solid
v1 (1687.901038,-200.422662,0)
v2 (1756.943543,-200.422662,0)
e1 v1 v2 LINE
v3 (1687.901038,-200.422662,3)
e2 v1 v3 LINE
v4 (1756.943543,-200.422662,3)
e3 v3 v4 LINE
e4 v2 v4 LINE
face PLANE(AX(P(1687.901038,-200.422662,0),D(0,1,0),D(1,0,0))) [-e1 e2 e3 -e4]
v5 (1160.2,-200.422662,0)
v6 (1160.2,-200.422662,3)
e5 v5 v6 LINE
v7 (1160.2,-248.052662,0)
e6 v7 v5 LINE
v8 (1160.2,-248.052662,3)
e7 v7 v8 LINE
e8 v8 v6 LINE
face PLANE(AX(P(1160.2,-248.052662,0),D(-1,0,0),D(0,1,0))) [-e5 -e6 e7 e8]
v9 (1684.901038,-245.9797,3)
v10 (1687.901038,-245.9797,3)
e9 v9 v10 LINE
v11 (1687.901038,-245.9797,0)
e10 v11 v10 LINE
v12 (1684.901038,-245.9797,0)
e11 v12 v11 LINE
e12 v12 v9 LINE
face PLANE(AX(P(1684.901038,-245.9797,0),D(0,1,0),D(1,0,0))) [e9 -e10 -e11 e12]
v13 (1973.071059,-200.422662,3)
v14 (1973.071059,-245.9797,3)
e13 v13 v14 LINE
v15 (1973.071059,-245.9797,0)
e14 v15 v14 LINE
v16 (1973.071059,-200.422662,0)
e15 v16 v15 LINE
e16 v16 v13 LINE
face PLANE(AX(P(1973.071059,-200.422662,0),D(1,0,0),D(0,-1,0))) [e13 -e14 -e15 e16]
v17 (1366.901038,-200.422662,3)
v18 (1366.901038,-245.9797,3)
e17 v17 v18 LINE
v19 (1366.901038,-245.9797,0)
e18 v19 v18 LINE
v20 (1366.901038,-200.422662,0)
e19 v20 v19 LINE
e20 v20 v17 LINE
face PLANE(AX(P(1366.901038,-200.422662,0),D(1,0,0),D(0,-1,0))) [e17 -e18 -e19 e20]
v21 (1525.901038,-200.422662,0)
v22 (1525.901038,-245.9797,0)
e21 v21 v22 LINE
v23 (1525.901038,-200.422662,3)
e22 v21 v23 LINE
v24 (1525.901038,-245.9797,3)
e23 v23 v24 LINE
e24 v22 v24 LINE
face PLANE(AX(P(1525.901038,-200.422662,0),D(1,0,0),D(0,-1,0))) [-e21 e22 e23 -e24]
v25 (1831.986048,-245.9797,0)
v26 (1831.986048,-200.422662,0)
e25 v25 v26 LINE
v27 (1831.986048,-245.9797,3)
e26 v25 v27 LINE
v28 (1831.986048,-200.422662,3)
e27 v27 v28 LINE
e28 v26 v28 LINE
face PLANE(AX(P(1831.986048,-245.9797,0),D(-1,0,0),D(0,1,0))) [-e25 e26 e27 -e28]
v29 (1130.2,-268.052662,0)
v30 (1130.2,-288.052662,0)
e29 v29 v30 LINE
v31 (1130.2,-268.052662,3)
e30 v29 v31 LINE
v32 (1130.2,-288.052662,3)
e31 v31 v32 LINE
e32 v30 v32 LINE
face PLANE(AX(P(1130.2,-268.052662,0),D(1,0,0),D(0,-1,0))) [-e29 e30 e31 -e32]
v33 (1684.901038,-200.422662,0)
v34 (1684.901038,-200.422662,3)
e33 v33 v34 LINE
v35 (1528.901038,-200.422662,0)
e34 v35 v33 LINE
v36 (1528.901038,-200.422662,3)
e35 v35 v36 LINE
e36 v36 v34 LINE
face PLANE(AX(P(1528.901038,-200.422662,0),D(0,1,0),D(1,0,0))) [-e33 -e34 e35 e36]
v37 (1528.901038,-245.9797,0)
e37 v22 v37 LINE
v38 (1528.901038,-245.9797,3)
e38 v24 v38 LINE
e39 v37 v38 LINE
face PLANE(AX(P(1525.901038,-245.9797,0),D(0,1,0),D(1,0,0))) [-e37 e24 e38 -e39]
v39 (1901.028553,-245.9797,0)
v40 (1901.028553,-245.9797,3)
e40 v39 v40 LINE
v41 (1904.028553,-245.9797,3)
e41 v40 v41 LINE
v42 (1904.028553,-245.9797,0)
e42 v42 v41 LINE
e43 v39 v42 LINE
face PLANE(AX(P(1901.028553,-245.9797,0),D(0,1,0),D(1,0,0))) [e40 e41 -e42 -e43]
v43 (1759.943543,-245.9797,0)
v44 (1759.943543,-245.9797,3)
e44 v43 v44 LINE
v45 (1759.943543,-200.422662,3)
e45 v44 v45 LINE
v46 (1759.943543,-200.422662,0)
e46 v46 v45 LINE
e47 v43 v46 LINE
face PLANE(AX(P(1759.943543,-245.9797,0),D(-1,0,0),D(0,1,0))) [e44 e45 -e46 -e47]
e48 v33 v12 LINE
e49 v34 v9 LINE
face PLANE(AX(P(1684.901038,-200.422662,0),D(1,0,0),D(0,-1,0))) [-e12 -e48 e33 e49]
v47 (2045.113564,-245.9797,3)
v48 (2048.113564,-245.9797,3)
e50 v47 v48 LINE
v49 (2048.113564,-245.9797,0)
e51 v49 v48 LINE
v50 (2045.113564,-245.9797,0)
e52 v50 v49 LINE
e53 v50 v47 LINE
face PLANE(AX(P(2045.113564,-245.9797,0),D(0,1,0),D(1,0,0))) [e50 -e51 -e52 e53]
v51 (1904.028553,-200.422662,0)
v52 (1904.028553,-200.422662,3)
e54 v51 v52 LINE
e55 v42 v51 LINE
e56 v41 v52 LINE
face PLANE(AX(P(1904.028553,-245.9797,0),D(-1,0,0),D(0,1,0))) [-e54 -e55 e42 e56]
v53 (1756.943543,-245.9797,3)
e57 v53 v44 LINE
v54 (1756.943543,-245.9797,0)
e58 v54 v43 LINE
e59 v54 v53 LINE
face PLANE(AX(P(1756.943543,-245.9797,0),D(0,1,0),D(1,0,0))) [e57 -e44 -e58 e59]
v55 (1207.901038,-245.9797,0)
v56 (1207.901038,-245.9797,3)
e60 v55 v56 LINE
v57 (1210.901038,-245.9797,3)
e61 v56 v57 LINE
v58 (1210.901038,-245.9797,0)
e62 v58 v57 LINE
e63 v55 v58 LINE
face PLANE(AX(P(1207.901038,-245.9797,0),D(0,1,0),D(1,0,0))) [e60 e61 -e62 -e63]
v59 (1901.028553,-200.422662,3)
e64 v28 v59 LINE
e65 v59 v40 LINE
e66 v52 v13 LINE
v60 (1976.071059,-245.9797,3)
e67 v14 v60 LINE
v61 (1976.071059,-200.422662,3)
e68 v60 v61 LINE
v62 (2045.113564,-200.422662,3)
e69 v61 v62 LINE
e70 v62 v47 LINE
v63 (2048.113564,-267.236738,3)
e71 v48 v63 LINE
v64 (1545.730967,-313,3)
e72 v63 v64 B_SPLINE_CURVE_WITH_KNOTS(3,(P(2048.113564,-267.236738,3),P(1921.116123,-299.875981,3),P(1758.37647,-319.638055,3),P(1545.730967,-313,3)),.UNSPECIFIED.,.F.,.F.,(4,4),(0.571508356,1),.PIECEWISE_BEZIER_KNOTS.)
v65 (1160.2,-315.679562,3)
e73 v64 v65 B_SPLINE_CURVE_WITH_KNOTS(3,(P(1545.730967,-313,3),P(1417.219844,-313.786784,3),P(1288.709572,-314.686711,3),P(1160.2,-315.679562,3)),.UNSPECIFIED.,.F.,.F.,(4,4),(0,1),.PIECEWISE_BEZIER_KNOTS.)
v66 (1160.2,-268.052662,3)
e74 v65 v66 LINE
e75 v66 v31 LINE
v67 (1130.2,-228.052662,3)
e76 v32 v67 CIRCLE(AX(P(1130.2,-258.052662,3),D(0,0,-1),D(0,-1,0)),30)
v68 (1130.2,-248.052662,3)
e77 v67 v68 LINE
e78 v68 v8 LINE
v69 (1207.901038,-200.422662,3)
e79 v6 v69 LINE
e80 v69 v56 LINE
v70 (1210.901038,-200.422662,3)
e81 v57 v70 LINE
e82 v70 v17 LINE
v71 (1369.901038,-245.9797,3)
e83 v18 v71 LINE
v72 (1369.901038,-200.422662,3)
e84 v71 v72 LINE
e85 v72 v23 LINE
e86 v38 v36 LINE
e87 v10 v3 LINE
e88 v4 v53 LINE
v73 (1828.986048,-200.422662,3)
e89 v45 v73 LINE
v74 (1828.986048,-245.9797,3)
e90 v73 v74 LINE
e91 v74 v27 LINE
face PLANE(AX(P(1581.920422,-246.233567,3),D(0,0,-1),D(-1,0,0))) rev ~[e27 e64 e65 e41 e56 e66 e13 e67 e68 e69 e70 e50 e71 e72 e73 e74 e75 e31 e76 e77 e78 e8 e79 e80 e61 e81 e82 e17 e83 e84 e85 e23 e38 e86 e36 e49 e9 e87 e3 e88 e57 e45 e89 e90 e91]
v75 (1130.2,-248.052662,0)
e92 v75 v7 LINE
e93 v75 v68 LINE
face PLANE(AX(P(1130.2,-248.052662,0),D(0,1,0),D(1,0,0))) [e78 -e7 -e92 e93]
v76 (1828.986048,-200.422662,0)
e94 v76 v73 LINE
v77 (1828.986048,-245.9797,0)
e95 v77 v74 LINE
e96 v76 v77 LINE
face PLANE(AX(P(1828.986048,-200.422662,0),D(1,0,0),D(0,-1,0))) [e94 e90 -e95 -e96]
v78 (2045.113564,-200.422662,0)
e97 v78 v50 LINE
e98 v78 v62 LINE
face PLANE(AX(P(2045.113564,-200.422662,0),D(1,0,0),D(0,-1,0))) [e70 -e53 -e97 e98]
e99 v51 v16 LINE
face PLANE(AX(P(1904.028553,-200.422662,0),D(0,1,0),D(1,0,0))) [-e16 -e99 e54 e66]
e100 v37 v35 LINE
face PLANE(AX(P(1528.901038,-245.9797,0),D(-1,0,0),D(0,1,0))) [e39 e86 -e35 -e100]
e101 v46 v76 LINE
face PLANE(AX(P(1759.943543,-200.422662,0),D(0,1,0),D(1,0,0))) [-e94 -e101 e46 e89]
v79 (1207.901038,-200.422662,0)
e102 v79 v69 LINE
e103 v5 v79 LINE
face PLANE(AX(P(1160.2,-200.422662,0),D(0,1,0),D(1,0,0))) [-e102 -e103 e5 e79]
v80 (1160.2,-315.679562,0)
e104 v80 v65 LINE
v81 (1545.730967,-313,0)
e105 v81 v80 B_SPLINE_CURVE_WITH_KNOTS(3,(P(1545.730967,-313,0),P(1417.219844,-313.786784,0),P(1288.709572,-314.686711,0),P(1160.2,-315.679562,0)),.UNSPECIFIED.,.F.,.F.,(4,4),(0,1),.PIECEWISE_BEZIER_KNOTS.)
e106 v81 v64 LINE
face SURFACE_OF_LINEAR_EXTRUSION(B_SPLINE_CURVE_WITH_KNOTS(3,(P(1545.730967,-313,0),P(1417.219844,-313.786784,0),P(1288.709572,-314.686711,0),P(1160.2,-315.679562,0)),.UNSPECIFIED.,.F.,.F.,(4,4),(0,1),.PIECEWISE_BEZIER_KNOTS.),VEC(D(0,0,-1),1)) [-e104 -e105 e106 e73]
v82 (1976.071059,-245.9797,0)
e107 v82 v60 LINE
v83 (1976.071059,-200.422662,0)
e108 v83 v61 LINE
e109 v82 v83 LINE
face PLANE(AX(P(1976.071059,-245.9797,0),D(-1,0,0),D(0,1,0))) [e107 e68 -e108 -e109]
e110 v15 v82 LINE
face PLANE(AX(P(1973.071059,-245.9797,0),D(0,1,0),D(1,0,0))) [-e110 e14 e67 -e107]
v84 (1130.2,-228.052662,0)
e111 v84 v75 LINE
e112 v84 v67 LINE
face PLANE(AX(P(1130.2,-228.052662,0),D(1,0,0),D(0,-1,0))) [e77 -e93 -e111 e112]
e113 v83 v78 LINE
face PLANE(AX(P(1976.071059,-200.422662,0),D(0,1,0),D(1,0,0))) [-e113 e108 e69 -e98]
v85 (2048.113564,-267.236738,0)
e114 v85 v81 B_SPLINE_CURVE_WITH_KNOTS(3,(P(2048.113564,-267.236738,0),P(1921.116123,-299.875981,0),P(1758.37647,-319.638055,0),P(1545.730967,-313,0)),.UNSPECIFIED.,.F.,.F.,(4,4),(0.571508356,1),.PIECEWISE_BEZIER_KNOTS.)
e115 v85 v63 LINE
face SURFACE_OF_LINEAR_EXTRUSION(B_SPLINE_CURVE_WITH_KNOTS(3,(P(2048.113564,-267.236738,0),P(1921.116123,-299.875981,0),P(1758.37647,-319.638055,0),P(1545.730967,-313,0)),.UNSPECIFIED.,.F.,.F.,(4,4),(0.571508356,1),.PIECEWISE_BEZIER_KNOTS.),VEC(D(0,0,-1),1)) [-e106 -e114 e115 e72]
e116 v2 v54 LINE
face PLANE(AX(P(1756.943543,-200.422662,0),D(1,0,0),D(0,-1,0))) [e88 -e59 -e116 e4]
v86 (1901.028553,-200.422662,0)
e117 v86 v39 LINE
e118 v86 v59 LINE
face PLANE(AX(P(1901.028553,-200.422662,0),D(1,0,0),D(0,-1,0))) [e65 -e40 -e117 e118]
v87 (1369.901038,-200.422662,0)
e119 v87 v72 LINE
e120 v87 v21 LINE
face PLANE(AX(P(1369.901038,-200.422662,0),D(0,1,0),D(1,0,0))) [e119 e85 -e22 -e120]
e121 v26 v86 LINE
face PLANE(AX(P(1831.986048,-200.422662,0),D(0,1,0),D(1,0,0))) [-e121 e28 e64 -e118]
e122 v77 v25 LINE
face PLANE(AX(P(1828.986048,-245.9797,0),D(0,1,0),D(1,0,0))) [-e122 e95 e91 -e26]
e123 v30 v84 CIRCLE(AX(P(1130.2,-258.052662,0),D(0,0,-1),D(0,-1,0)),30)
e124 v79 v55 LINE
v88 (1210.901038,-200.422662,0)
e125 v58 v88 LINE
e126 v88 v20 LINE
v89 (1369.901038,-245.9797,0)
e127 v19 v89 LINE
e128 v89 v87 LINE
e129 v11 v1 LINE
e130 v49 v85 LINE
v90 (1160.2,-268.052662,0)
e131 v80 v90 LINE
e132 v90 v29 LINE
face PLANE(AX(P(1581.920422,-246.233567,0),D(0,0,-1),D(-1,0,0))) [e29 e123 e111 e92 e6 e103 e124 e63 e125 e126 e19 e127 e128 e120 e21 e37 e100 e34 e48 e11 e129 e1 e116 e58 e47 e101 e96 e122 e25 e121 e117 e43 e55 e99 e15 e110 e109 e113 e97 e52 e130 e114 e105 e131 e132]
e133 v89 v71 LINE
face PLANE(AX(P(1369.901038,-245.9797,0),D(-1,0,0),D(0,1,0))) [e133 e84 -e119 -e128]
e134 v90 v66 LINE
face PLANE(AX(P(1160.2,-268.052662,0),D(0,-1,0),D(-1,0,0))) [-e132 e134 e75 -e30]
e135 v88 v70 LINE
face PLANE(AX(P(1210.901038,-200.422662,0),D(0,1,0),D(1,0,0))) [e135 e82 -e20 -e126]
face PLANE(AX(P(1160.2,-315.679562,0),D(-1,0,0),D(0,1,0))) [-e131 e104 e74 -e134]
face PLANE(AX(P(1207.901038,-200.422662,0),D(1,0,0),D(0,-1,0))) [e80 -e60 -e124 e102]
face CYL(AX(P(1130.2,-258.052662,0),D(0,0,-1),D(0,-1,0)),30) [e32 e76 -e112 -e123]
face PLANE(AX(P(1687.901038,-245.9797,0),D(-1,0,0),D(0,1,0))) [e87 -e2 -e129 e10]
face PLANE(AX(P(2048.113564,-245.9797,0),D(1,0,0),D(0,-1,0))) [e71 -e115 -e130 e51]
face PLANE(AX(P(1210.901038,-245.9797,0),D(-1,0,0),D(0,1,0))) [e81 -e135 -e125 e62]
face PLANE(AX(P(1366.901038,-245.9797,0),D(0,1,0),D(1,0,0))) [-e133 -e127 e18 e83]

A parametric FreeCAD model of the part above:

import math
import FreeCAD as App
import Part
import Sketcher

doc = App.newDocument("Part")
params = doc.addObject("Spreadsheet::Sheet", "Params")
for row, (alias, value) in enumerate([
    ("sketch1_radius", "30 mm"),
    ("sketch1_width", "30 mm"),
    ("sketch1_width2", "3 mm"),
    ("sketch1_width3", "156 mm"),
    ("sketch1_height", "20 mm"),
    ("pad1_length", "3 mm"),
], start=1):
    params.set(f"A{row}", alias)
    params.set(f"B{row}", "=" + value)
    params.setAlias(f"B{row}", alias)

body = doc.addObject("PartDesign::Body", "Body")

# Sketch on XY plane
sketch1 = body.newObject("Sketcher::SketchObject", "Sketch")
sketch1.AttachmentSupport = (doc.getObject("XY_Plane"), [""])
sketch1.MapMode = "FlatFace"
sketch1.addGeometry([
    Part.LineSegment(App.Vector(1130.2, -248.052662, 0), App.Vector(1130.2, -228.052662, 0)),  # 0
    Part.ArcOfCircle(Part.Circle(App.Vector(1130.2, -258.052662, 0), App.Vector(0, 0, 1), 30), math.radians(90), math.radians(270)),  # 1
    Part.LineSegment(App.Vector(1130.2, -288.052662, 0), App.Vector(1130.2, -268.052662, 0)),  # 2
    Part.LineSegment(App.Vector(1130.2, -268.052662, 0), App.Vector(1160.2, -268.052662, 0)),  # 3
    Part.LineSegment(App.Vector(1160.2, -268.052662, 0), App.Vector(1160.2, -315.679562, 0)),  # 4
    Part.BSplineCurve([App.Vector(1545.730967, -313, 0), App.Vector(1417.219844, -313.786784, 0), App.Vector(1288.709572, -314.686711, 0), App.Vector(1160.2, -315.679562, 0)], [4, 4], [0, 1], False, 3, [1, 1, 1, 1], False),  # 5
    Part.BSplineCurve([App.Vector(2048.113564, -267.236738, 0), App.Vector(1921.116123, -299.875981, 0), App.Vector(1758.37647, -319.638055, 0), App.Vector(1545.730967, -313, 0)], [4, 4], [0.571508356, 1], False, 3, [1, 1, 1, 1], False),  # 6
    Part.LineSegment(App.Vector(2048.113564, -267.236738, 0), App.Vector(2048.113564, -245.9797, 0)),  # 7
    Part.LineSegment(App.Vector(2048.113564, -245.9797, 0), App.Vector(2045.113564, -245.9797, 0)),  # 8
    Part.LineSegment(App.Vector(2045.113564, -245.9797, 0), App.Vector(2045.113564, -200.422662, 0)),  # 9
    Part.LineSegment(App.Vector(2045.113564, -200.422662, 0), App.Vector(1976.071059, -200.422662, 0)),  # 10
    Part.LineSegment(App.Vector(1976.071059, -200.422662, 0), App.Vector(1976.071059, -245.9797, 0)),  # 11
    Part.LineSegment(App.Vector(1976.071059, -245.9797, 0), App.Vector(1973.071059, -245.9797, 0)),  # 12
    Part.LineSegment(App.Vector(1973.071059, -245.9797, 0), App.Vector(1973.071059, -200.422662, 0)),  # 13
    Part.LineSegment(App.Vector(1973.071059, -200.422662, 0), App.Vector(1904.028553, -200.422662, 0)),  # 14
    Part.LineSegment(App.Vector(1904.028553, -200.422662, 0), App.Vector(1904.028553, -245.9797, 0)),  # 15
    Part.LineSegment(App.Vector(1904.028553, -245.9797, 0), App.Vector(1901.028553, -245.9797, 0)),  # 16
    Part.LineSegment(App.Vector(1901.028553, -245.9797, 0), App.Vector(1901.028553, -200.422662, 0)),  # 17
    Part.LineSegment(App.Vector(1901.028553, -200.422662, 0), App.Vector(1831.986048, -200.422662, 0)),  # 18
    Part.LineSegment(App.Vector(1831.986048, -200.422662, 0), App.Vector(1831.986048, -245.9797, 0)),  # 19
    Part.LineSegment(App.Vector(1831.986048, -245.9797, 0), App.Vector(1828.986048, -245.9797, 0)),  # 20
    Part.LineSegment(App.Vector(1828.986048, -245.9797, 0), App.Vector(1828.986048, -200.422662, 0)),  # 21
    Part.LineSegment(App.Vector(1828.986048, -200.422662, 0), App.Vector(1759.943543, -200.422662, 0)),  # 22
    Part.LineSegment(App.Vector(1759.943543, -200.422662, 0), App.Vector(1759.943543, -245.9797, 0)),  # 23
    Part.LineSegment(App.Vector(1759.943543, -245.9797, 0), App.Vector(1756.943543, -245.9797, 0)),  # 24
    Part.LineSegment(App.Vector(1756.943543, -245.9797, 0), App.Vector(1756.943543, -200.422662, 0)),  # 25
    Part.LineSegment(App.Vector(1756.943543, -200.422662, 0), App.Vector(1687.901038, -200.422662, 0)),  # 26
    Part.LineSegment(App.Vector(1687.901038, -200.422662, 0), App.Vector(1687.901038, -245.9797, 0)),  # 27
    Part.LineSegment(App.Vector(1687.901038, -245.9797, 0), App.Vector(1684.901038, -245.9797, 0)),  # 28
    Part.LineSegment(App.Vector(1684.901038, -245.9797, 0), App.Vector(1684.901038, -200.422662, 0)),  # 29
    Part.LineSegment(App.Vector(1684.901038, -200.422662, 0), App.Vector(1528.901038, -200.422662, 0)),  # 30
    Part.LineSegment(App.Vector(1528.901038, -200.422662, 0), App.Vector(1528.901038, -245.9797, 0)),  # 31
    Part.LineSegment(App.Vector(1528.901038, -245.9797, 0), App.Vector(1525.901038, -245.9797, 0)),  # 32
    Part.LineSegment(App.Vector(1525.901038, -245.9797, 0), App.Vector(1525.901038, -200.422662, 0)),  # 33
    Part.LineSegment(App.Vector(1525.901038, -200.422662, 0), App.Vector(1369.901038, -200.422662, 0)),  # 34
    Part.LineSegment(App.Vector(1369.901038, -200.422662, 0), App.Vector(1369.901038, -245.9797, 0)),  # 35
    Part.LineSegment(App.Vector(1369.901038, -245.9797, 0), App.Vector(1366.901038, -245.9797, 0)),  # 36
    Part.LineSegment(App.Vector(1366.901038, -245.9797, 0), App.Vector(1366.901038, -200.422662, 0)),  # 37
    Part.LineSegment(App.Vector(1366.901038, -200.422662, 0), App.Vector(1210.901038, -200.422662, 0)),  # 38
    Part.LineSegment(App.Vector(1210.901038, -200.422662, 0), App.Vector(1210.901038, -245.9797, 0)),  # 39
    Part.LineSegment(App.Vector(1210.901038, -245.9797, 0), App.Vector(1207.901038, -245.9797, 0)),  # 40
    Part.LineSegment(App.Vector(1207.901038, -245.9797, 0), App.Vector(1207.901038, -200.422662, 0)),  # 41
    Part.LineSegment(App.Vector(1207.901038, -200.422662, 0), App.Vector(1160.2, -200.422662, 0)),  # 42
    Part.LineSegment(App.Vector(1160.2, -200.422662, 0), App.Vector(1160.2, -248.052662, 0)),  # 43
    Part.LineSegment(App.Vector(1160.2, -248.052662, 0), App.Vector(1130.2, -248.052662, 0)),  # 44
], False)
sketch1.addConstraint([
    Sketcher.Constraint("Block", 5),
    Sketcher.Constraint("Block", 6),
    Sketcher.Constraint("Coincident", 0, 2, 1, 1),
    Sketcher.Constraint("Coincident", 1, 2, 2, 1),
    Sketcher.Constraint("Coincident", 2, 2, 3, 1),
    Sketcher.Constraint("Coincident", 3, 2, 4, 1),
    Sketcher.Constraint("Coincident", 4, 2, 5, 2),
    Sketcher.Constraint("Coincident", 6, 1, 7, 1),
    Sketcher.Constraint("Coincident", 7, 2, 8, 1),
    Sketcher.Constraint("Coincident", 8, 2, 9, 1),
    Sketcher.Constraint("Coincident", 9, 2, 10, 1),
    Sketcher.Constraint("Coincident", 10, 2, 11, 1),
    Sketcher.Constraint("Coincident", 11, 2, 12, 1),
    Sketcher.Constraint("Coincident", 12, 2, 13, 1),
    Sketcher.Constraint("Coincident", 13, 2, 14, 1),
    Sketcher.Constraint("Coincident", 14, 2, 15, 1),
    Sketcher.Constraint("Coincident", 15, 2, 16, 1),
    Sketcher.Constraint("Coincident", 16, 2, 17, 1),
    Sketcher.Constraint("Coincident", 17, 2, 18, 1),
    Sketcher.Constraint("Coincident", 18, 2, 19, 1),
    Sketcher.Constraint("Coincident", 19, 2, 20, 1),
    Sketcher.Constraint("Coincident", 20, 2, 21, 1),
    Sketcher.Constraint("Coincident", 21, 2, 22, 1),
    Sketcher.Constraint("Coincident", 22, 2, 23, 1),
    Sketcher.Constraint("Coincident", 23, 2, 24, 1),
    Sketcher.Constraint("Coincident", 24, 2, 25, 1),
    Sketcher.Constraint("Coincident", 25, 2, 26, 1),
    Sketcher.Constraint("Coincident", 26, 2, 27, 1),
    Sketcher.Constraint("Coincident", 27, 2, 28, 1),
    Sketcher.Constraint("Coincident", 28, 2, 29, 1),
    Sketcher.Constraint("Coincident", 29, 2, 30, 1),
    Sketcher.Constraint("Coincident", 30, 2, 31, 1),
    Sketcher.Constraint("Coincident", 31, 2, 32, 1),
    Sketcher.Constraint("Coincident", 32, 2, 33, 1),
    Sketcher.Constraint("Coincident", 33, 2, 34, 1),
    Sketcher.Constraint("Coincident", 34, 2, 35, 1),
    Sketcher.Constraint("Coincident", 35, 2, 36, 1),
    Sketcher.Constraint("Coincident", 36, 2, 37, 1),
    Sketcher.Constraint("Coincident", 37, 2, 38, 1),
    Sketcher.Constraint("Coincident", 38, 2, 39, 1),
    Sketcher.Constraint("Coincident", 39, 2, 40, 1),
    Sketcher.Constraint("Coincident", 40, 2, 41, 1),
    Sketcher.Constraint("Coincident", 41, 2, 42, 1),
    Sketcher.Constraint("Coincident", 42, 2, 43, 1),
    Sketcher.Constraint("Coincident", 43, 2, 44, 1),
    Sketcher.Constraint("Coincident", 44, 2, 0, 1),
    Sketcher.Constraint("Vertical", 0),
    Sketcher.Constraint("Vertical", 2),
    Sketcher.Constraint("Horizontal", 3),
    Sketcher.Constraint("Vertical", 4),
    Sketcher.Constraint("Vertical", 7),
    Sketcher.Constraint("Horizontal", 8),
    Sketcher.Constraint("Vertical", 9),
    Sketcher.Constraint("Horizontal", 10),
    Sketcher.Constraint("Vertical", 11),
    Sketcher.Constraint("Horizontal", 12),
    Sketcher.Constraint("Vertical", 13),
    Sketcher.Constraint("Horizontal", 14),
    Sketcher.Constraint("Vertical", 15),
    Sketcher.Constraint("Horizontal", 16),
    Sketcher.Constraint("Vertical", 17),
    Sketcher.Constraint("Horizontal", 18),
    Sketcher.Constraint("Vertical", 19),
    Sketcher.Constraint("Horizontal", 20),
    Sketcher.Constraint("Vertical", 21),
    Sketcher.Constraint("Horizontal", 22),
    Sketcher.Constraint("Vertical", 23),
    Sketcher.Constraint("Horizontal", 24),
    Sketcher.Constraint("Vertical", 25),
    Sketcher.Constraint("Horizontal", 26),
    Sketcher.Constraint("Vertical", 27),
    Sketcher.Constraint("Horizontal", 28),
    Sketcher.Constraint("Vertical", 29),
    Sketcher.Constraint("Horizontal", 30),
    Sketcher.Constraint("Vertical", 31),
    Sketcher.Constraint("Horizontal", 32),
    Sketcher.Constraint("Vertical", 33),
    Sketcher.Constraint("Horizontal", 34),
    Sketcher.Constraint("Vertical", 35),
    Sketcher.Constraint("Horizontal", 36),
    Sketcher.Constraint("Vertical", 37),
    Sketcher.Constraint("Horizontal", 38),
    Sketcher.Constraint("Vertical", 39),
    Sketcher.Constraint("Horizontal", 40),
    Sketcher.Constraint("Vertical", 41),
    Sketcher.Constraint("Horizontal", 42),
    Sketcher.Constraint("Vertical", 43),
    Sketcher.Constraint("Horizontal", 44),
    Sketcher.Constraint("Horizontal", 8, 2, 11, 2),
    Sketcher.Constraint("Horizontal", 10, 2, 13, 2),
    Sketcher.Constraint("Horizontal", 12, 2, 15, 2),
    Sketcher.Constraint("Horizontal", 14, 2, 17, 2),
    Sketcher.Constraint("Horizontal", 16, 2, 19, 2),
    Sketcher.Constraint("Horizontal", 18, 2, 21, 2),
    Sketcher.Constraint("Horizontal", 20, 2, 23, 2),
    Sketcher.Constraint("Horizontal", 22, 2, 25, 2),
    Sketcher.Constraint("Horizontal", 24, 2, 27, 2),
    Sketcher.Constraint("Horizontal", 26, 2, 29, 2),
    Sketcher.Constraint("Horizontal", 28, 2, 31, 2),
    Sketcher.Constraint("Horizontal", 30, 2, 33, 2),
    Sketcher.Constraint("Horizontal", 32, 2, 35, 2),
    Sketcher.Constraint("Horizontal", 34, 2, 37, 2),
    Sketcher.Constraint("Horizontal", 36, 2, 39, 2),
    Sketcher.Constraint("Horizontal", 38, 2, 41, 2),
    Sketcher.Constraint("Vertical", 1, 3, 0, 2),
    Sketcher.Constraint("Vertical", 0, 2, 1, 2),
    Sketcher.Constraint("Vertical", 4, 2, 42, 2),
    Sketcher.Constraint("Equal", 8, 12),
    Sketcher.Constraint("Equal", 10, 14),
    Sketcher.Constraint("Equal", 12, 16),
    Sketcher.Constraint("Equal", 14, 18),
    Sketcher.Constraint("Equal", 16, 20),
    Sketcher.Constraint("Equal", 18, 22),
    Sketcher.Constraint("Equal", 20, 24),
    Sketcher.Constraint("Equal", 22, 26),
    Sketcher.Constraint("Equal", 24, 28),
    Sketcher.Constraint("Equal", 28, 32),
    Sketcher.Constraint("Equal", 30, 34),
    Sketcher.Constraint("Equal", 32, 36),
    Sketcher.Constraint("Equal", 34, 38),
    Sketcher.Constraint("Equal", 36, 40),
    Sketcher.Constraint("Equal", 0, 2),
    Sketcher.Constraint("Radius", 1, 30.0),
    Sketcher.Constraint("DistanceX", 3, 1, 3, 2, 30.0),
    Sketcher.Constraint("DistanceX", 8, 2, 8, 1, 3.0),
    Sketcher.Constraint("DistanceX", 30, 2, 30, 1, 156.0),
    Sketcher.Constraint("DistanceY", 0, 1, 0, 2, 20.0),
    Sketcher.Constraint("DistanceY", 43, 2, 43, 1, 47.63),
    Sketcher.Constraint("DistanceY", 4, 2, 4, 1, 47.6269),
    Sketcher.Constraint("DistanceY", 7, 1, 7, 2, 21.257038),
    Sketcher.Constraint("DistanceX", 10, 2, 10, 1, 69.042505),
])
sketch1.setExpression("Constraints[122]", "Params.sketch1_radius")
sketch1.setExpression("Constraints[123]", "Params.sketch1_width")
sketch1.setExpression("Constraints[124]", "Params.sketch1_width2")
sketch1.setExpression("Constraints[125]", "Params.sketch1_width3")
sketch1.setExpression("Constraints[126]", "Params.sketch1_height")
pad1 = body.newObject("PartDesign::Pad", "Pad")
pad1.Profile = sketch1
pad1.setExpression("Length", "Params.pad1_length")

doc.recompute()
